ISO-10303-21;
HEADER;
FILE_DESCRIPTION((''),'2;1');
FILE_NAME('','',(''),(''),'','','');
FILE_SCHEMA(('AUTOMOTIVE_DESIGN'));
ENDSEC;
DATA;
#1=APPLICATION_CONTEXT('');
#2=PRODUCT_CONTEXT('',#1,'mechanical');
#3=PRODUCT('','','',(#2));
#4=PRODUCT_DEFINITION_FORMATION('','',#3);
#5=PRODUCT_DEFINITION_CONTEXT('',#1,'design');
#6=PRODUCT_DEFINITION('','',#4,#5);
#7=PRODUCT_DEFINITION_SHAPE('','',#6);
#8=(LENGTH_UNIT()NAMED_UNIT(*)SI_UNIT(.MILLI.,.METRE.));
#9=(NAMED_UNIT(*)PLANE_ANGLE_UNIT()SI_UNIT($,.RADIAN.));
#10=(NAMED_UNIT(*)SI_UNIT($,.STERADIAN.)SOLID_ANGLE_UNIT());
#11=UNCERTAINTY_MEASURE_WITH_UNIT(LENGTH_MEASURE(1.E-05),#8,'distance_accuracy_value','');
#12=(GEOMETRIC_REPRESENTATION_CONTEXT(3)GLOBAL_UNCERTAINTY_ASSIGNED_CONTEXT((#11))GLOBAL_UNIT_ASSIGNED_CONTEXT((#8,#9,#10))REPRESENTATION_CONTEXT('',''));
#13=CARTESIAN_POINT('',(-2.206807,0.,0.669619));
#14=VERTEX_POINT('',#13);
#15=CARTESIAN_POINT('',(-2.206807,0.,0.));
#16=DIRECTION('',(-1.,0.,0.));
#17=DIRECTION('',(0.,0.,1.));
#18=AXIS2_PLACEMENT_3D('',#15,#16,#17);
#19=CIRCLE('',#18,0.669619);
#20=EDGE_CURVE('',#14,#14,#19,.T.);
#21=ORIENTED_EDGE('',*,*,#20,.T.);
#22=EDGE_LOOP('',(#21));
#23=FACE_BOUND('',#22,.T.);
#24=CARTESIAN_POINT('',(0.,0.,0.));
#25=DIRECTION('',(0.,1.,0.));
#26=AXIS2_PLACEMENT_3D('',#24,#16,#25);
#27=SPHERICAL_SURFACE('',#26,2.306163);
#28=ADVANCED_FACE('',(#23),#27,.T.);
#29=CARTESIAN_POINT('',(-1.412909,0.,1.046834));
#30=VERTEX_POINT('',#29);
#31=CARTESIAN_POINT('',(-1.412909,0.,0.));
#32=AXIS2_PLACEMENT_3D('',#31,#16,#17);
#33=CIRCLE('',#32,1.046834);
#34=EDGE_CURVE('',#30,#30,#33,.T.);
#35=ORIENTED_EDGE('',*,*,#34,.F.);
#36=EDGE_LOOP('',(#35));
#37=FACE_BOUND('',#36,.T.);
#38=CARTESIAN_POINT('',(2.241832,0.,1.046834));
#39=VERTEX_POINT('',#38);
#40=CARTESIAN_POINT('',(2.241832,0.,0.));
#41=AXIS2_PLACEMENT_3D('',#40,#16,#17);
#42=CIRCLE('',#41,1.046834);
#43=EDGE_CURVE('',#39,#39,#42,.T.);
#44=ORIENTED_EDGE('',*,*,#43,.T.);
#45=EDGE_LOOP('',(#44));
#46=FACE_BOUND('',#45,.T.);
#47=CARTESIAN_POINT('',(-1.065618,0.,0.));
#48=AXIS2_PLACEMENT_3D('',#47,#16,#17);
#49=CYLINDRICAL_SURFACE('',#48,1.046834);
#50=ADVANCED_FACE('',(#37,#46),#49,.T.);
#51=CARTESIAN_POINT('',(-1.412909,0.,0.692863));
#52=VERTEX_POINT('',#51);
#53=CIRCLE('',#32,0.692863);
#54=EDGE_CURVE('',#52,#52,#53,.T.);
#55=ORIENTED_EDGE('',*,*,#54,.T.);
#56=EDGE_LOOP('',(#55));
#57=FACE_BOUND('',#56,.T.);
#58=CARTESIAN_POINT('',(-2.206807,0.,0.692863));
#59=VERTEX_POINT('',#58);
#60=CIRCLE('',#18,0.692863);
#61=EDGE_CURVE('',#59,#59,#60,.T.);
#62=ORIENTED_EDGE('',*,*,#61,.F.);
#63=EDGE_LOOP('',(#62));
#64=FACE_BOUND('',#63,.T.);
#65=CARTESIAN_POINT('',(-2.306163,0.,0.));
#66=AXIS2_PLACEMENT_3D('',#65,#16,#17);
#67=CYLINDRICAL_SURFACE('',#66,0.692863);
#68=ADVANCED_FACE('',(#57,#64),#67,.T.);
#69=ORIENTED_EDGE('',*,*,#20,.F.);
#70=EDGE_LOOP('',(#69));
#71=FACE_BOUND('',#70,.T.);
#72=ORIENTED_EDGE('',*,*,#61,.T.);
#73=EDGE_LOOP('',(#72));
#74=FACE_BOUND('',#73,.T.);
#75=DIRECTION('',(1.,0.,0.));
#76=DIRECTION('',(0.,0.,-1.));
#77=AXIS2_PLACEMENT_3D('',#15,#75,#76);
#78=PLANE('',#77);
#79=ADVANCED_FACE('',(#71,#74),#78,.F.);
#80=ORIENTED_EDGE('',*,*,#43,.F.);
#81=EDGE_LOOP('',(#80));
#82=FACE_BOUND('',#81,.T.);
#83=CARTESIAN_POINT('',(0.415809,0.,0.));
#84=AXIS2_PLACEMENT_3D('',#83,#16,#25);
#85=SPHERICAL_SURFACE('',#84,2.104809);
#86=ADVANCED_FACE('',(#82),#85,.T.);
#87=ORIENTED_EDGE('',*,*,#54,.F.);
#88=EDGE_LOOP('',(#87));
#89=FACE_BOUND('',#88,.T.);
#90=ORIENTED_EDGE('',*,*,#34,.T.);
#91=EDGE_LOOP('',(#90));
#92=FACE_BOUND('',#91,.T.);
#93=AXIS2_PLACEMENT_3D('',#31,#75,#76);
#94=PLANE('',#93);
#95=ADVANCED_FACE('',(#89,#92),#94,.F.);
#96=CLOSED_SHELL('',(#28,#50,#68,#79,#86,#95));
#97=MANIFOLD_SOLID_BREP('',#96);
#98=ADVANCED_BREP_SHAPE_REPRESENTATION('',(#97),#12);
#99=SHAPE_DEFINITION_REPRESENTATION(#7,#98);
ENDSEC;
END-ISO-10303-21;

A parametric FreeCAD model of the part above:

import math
import FreeCAD as App
import Part
import Sketcher

doc = App.newDocument("Part")
params = doc.addObject("Spreadsheet::Sheet", "Params")
for row, (alias, value) in enumerate([
    ("revolution_angle", "360 deg"),
    ("revolution2_angle", "360 deg"),
], start=1):
    params.set(f"A{row}", alias)
    params.set(f"B{row}", "=" + value)
    params.setAlias(f"B{row}", alias)

body = doc.addObject("PartDesign::Body", "Body")

sketch1 = body.newObject("Sketcher::SketchObject", "Sketch")
sketch1.AttachmentSupport = (doc.getObject("XY_Plane"), [""])
sketch1.MapMode = "FlatFace"
sketch1.addGeometry(Part.ArcOfCircle(Part.Circle(App.Vector(-1.930412, 0, 0), App.Vector(0, 0, 1), 0.864794), math.radians(0), math.radians(53.243745)), False)
sketch1.addGeometry(Part.LineSegment(App.Vector(-1.065618, 0, 0), App.Vector(2.520618, 0, 0)), False)
sketch1.addGeometry(Part.ArcOfCircle(Part.Circle(App.Vector(0.415809, 0, 0), App.Vector(0, 0, 1), 2.104809), math.radians(0), math.radians(29.825059)), False)
sketch1.addGeometry(Part.LineSegment(App.Vector(2.241832, 1.046834, 0), App.Vector(-1.412909, 1.046834, 0)), False)
sketch1.addGeometry(Part.LineSegment(App.Vector(-1.412909, 1.046834, 0), App.Vector(-1.412909, 0.692863, 0)), False)
sketch1.addConstraint(Sketcher.Constraint("Coincident", 0, 1, 1, 1))
sketch1.addConstraint(Sketcher.Constraint("Coincident", 1, 2, 2, 1))
sketch1.addConstraint(Sketcher.Constraint("Coincident", 2, 2, 3, 1))
sketch1.addConstraint(Sketcher.Constraint("Coincident", 3, 2, 4, 1))
sketch1.addConstraint(Sketcher.Constraint("Coincident", 4, 2, 0, 2))
sketch1.addConstraint(Sketcher.Constraint("Horizontal", 1))
sketch1.addConstraint(Sketcher.Constraint("Horizontal", 3))
sketch1.addConstraint(Sketcher.Constraint("Vertical", 4))
sketch1.addConstraint(Sketcher.Constraint("PointOnObject", 0, 3, -1))
sketch1.addConstraint(Sketcher.Constraint("PointOnObject", 2, 3, -1))
sketch1.addConstraint(Sketcher.Constraint("PointOnObject", 0, 1, -1))
sketch1.addConstraint(Sketcher.Constraint("Radius", 2, 2.104809))
sketch1.addConstraint(Sketcher.Constraint("Radius", 0, 0.864794))
sketch1.addConstraint(Sketcher.Constraint("DistanceX", 3, 2, 3, 1, 3.654741))
sketch1.addConstraint(Sketcher.Constraint("DistanceY", 4, 2, 4, 1, 0.353971))
sketch1.addConstraint(Sketcher.Constraint("DistanceX", 1, 1, 1, 2, 3.586236))
sketch1.addConstraint(Sketcher.Constraint("DistanceX", 0, 3, -1, 1, 1.930412))
revolution = body.newObject("PartDesign::Revolution", "Revolution")
revolution.Profile = sketch1
revolution.ReferenceAxis = (sketch1, ["H_Axis"])
revolution.setExpression("Angle", "Params.revolution_angle")

sketch2 = body.newObject("Sketcher::SketchObject", "Sketch001")
sketch2.AttachmentSupport = (doc.getObject("XY_Plane"), [""])
sketch2.MapMode = "FlatFace"
sketch2.addGeometry(Part.LineSegment(App.Vector(-2.306163, 0, 0), App.Vector(-1.065618, 0, 0)), False)
sketch2.addGeometry(Part.ArcOfCircle(Part.Circle(App.Vector(-1.930412, 0, 0), App.Vector(0, 0, 1), 0.864794), math.radians(0), math.radians(53.243745)), False)
sketch2.addGeometry(Part.LineSegment(App.Vector(-1.412909, 0.692863, 0), App.Vector(-2.206807, 0.692863, 0)), False)
sketch2.addGeometry(Part.LineSegment(App.Vector(-2.206807, 0.692863, 0), App.Vector(-2.206807, 0.669619, 0)), False)
sketch2.addGeometry(Part.ArcOfCircle(Part.Circle(App.Vector(0, 0, 0), App.Vector(0, 0, 1), 2.306163), math.radians(163.120451), math.radians(180)), False)
sketch2.addConstraint(Sketcher.Constraint("Coincident", 0, 2, 1, 1))
sketch2.addConstraint(Sketcher.Constraint("Coincident", 1, 2, 2, 1))
sketch2.addConstraint(Sketcher.Constraint("Coincident", 2, 2, 3, 1))
sketch2.addConstraint(Sketcher.Constraint("Coincident", 3, 2, 4, 1))
sketch2.addConstraint(Sketcher.Constraint("Coincident", 4, 2, 0, 1))
sketch2.addConstraint(Sketcher.Constraint("Horizontal", 0))
sketch2.addConstraint(Sketcher.Constraint("Horizontal", 2))
sketch2.addConstraint(Sketcher.Constraint("Vertical", 3))
sketch2.addConstraint(Sketcher.Constraint("Coincident", 4, 3, -1, 1))
sketch2.addConstraint(Sketcher.Constraint("PointOnObject", 1, 3, -1))
sketch2.addConstraint(Sketcher.Constraint("PointOnObject", 0, 2, -1))
sketch2.addConstraint(Sketcher.Constraint("DistanceX", 2, 2, 2, 1, 0.793898))
sketch2.addConstraint(Sketcher.Constraint("Radius", 1, 0.864794))
sketch2.addConstraint(Sketcher.Constraint("Radius", 4, 2.306163))
sketch2.addConstraint(Sketcher.Constraint("DistanceX", 0, 1, 0, 2, 1.240545))
sketch2.addConstraint(Sketcher.Constraint("DistanceY", 3, 2, 3, 1, 0.023244))
revolution2 = body.newObject("PartDesign::Revolution", "Revolution001")
revolution2.Profile = sketch2
revolution2.ReferenceAxis = (sketch2, ["H_Axis"])
revolution2.setExpression("Angle", "Params.revolution2_angle")

doc.recompute()
